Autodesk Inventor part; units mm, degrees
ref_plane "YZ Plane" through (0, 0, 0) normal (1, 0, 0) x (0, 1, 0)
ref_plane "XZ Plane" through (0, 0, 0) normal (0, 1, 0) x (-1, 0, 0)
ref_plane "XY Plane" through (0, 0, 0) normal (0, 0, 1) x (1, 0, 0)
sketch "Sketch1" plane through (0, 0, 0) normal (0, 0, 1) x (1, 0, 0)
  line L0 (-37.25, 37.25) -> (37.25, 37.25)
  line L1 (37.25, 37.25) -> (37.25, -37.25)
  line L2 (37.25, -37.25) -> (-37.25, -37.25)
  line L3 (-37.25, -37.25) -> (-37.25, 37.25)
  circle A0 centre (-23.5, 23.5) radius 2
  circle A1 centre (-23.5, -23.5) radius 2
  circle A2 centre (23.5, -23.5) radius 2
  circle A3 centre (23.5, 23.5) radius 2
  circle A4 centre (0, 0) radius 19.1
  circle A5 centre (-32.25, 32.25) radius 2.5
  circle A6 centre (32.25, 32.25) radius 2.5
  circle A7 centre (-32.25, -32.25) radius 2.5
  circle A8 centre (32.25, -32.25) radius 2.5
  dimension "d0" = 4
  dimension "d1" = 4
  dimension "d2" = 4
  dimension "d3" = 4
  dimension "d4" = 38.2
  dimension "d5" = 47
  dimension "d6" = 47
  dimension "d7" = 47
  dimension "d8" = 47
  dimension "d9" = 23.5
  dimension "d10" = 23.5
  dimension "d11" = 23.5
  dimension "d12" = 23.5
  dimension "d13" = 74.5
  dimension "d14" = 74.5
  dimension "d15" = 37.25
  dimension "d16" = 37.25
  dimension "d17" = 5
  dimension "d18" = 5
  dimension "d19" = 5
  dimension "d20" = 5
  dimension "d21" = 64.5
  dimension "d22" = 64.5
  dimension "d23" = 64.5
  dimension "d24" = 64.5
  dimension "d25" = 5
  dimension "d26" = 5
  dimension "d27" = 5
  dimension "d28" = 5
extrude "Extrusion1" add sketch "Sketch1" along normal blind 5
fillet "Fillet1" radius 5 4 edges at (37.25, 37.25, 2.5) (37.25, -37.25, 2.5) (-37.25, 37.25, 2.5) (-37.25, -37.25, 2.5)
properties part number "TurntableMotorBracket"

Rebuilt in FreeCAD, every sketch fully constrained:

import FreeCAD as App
import Part
import Sketcher
from FreeCAD import Vector


def edges_at(feature, points):
    """Names of the edges that pass closest to the given points."""
    edges = feature.Shape.Edges
    near = lambda p: min(range(len(edges)), key=lambda i: edges[i].distToShape(Part.Vertex(*p))[0])
    return sorted({f"Edge{near(p) + 1}" for p in points})

doc = App.newDocument("Part")
body = doc.addObject("PartDesign::Body", "Body")

# Sketch on XY plane
sketch1 = body.newObject("Sketcher::SketchObject", "Sketch")
sketch1.AttachmentSupport = (doc.getObject("XY_Plane"), [""])
sketch1.MapMode = "FlatFace"
sketch1.addGeometry([
    Part.LineSegment(Vector(37.25, 37.25, 0), Vector(-37.25, 37.25, 0)),  # 0
    Part.LineSegment(Vector(-37.25, 37.25, 0), Vector(-37.25, -37.25, 0)),  # 1
    Part.LineSegment(Vector(-37.25, -37.25, 0), Vector(37.25, -37.25, 0)),  # 2
    Part.LineSegment(Vector(37.25, -37.25, 0), Vector(37.25, 37.25, 0)),  # 3
    Part.Circle(Vector(-32.25, -32.25, 0), Vector(0, 0, 1), 2.5),  # 4
    Part.Circle(Vector(-23.5, -23.5, 0), Vector(0, 0, 1), 2),  # 5
    Part.Circle(Vector(32.25, -32.25, 0), Vector(0, 0, 1), 2.5),  # 6
    Part.Circle(Vector(23.5, -23.5, 0), Vector(0, 0, 1), 2),  # 7
    Part.Circle(Vector(-23.5, 23.5, 0), Vector(0, 0, 1), 2),  # 8
    Part.Circle(Vector(-32.25, 32.25, 0), Vector(0, 0, 1), 2.5),  # 9
    Part.Circle(Vector(0, 0, 0), Vector(0, 0, 1), 19.1),  # 10
    Part.Circle(Vector(23.5, 23.5, 0), Vector(0, 0, 1), 2),  # 11
    Part.Circle(Vector(32.25, 32.25, 0), Vector(0, 0, 1), 2.5),  # 12
], False)
sketch1.addConstraint([
    Sketcher.Constraint("Coincident", 0, 2, 1, 1),
    Sketcher.Constraint("Coincident", 1, 2, 2, 1),
    Sketcher.Constraint("Coincident", 2, 2, 3, 1),
    Sketcher.Constraint("Coincident", 3, 2, 0, 1),
    Sketcher.Constraint("Horizontal", 0),
    Sketcher.Constraint("Vertical", 1),
    Sketcher.Constraint("Horizontal", 2),
    Sketcher.Constraint("Vertical", 3),
    Sketcher.Constraint("Coincident", 10, 3, -1, 1),
    Sketcher.Constraint("Equal", 4, 6),
    Sketcher.Constraint("Equal", 5, 7),
    Sketcher.Constraint("Equal", 7, 8),
    Sketcher.Constraint("Equal", 6, 9),
    Sketcher.Constraint("Equal", 8, 11),
    Sketcher.Constraint("Equal", 9, 12),
    Sketcher.Constraint("Symmetric", 7, 3, 8, 3, -1, 1),
    Sketcher.Constraint("Symmetric", 6, 3, 9, 3, -1, 1),
    Sketcher.Constraint("Symmetric", 5, 3, 11, 3, -1, 1),
    Sketcher.Constraint("Symmetric", 4, 3, 12, 3, -1, 1),
    Sketcher.Constraint("Symmetric", 0, 2, 2, 2, -1, 1),
    Sketcher.Constraint("Symmetric", 4, 3, 6, 3, -2),
    Sketcher.Constraint("Symmetric", 5, 3, 7, 3, -2),
    Sketcher.Constraint("Equal", 2, 1),
    Sketcher.Constraint("Diameter", 4, 5.0),
    Sketcher.Constraint("Diameter", 5, 4.0),
    Sketcher.Constraint("Diameter", 10, 38.2),
    Sketcher.Constraint("DistanceX", 0, 2, 0, 1, 74.5),
    Sketcher.Constraint("DistanceX", 5, 3, 7, 3, 47.0),
    Sketcher.Constraint("DistanceY", 5, 3, 8, 3, 47.0),
    Sketcher.Constraint("DistanceX", 0, 2, 9, 3, 5.0),
    Sketcher.Constraint("DistanceY", 9, 3, 0, 2, 5.0),
])
pad1 = body.newObject("PartDesign::Pad", "Pad")
pad1.Profile = sketch1
pad1.Length = 5
doc.recompute()

fillet = body.newObject("PartDesign::Fillet", "Fillet")
fillet.Base = (pad1, edges_at(pad1, [
    (37.25, 37.25, 2.5),
    (37.25, -37.25, 2.5),
    (-37.25, 37.25, 2.5),
    (-37.25, -37.25, 2.5),
]))
fillet.Radius = 5

doc.recompute()
